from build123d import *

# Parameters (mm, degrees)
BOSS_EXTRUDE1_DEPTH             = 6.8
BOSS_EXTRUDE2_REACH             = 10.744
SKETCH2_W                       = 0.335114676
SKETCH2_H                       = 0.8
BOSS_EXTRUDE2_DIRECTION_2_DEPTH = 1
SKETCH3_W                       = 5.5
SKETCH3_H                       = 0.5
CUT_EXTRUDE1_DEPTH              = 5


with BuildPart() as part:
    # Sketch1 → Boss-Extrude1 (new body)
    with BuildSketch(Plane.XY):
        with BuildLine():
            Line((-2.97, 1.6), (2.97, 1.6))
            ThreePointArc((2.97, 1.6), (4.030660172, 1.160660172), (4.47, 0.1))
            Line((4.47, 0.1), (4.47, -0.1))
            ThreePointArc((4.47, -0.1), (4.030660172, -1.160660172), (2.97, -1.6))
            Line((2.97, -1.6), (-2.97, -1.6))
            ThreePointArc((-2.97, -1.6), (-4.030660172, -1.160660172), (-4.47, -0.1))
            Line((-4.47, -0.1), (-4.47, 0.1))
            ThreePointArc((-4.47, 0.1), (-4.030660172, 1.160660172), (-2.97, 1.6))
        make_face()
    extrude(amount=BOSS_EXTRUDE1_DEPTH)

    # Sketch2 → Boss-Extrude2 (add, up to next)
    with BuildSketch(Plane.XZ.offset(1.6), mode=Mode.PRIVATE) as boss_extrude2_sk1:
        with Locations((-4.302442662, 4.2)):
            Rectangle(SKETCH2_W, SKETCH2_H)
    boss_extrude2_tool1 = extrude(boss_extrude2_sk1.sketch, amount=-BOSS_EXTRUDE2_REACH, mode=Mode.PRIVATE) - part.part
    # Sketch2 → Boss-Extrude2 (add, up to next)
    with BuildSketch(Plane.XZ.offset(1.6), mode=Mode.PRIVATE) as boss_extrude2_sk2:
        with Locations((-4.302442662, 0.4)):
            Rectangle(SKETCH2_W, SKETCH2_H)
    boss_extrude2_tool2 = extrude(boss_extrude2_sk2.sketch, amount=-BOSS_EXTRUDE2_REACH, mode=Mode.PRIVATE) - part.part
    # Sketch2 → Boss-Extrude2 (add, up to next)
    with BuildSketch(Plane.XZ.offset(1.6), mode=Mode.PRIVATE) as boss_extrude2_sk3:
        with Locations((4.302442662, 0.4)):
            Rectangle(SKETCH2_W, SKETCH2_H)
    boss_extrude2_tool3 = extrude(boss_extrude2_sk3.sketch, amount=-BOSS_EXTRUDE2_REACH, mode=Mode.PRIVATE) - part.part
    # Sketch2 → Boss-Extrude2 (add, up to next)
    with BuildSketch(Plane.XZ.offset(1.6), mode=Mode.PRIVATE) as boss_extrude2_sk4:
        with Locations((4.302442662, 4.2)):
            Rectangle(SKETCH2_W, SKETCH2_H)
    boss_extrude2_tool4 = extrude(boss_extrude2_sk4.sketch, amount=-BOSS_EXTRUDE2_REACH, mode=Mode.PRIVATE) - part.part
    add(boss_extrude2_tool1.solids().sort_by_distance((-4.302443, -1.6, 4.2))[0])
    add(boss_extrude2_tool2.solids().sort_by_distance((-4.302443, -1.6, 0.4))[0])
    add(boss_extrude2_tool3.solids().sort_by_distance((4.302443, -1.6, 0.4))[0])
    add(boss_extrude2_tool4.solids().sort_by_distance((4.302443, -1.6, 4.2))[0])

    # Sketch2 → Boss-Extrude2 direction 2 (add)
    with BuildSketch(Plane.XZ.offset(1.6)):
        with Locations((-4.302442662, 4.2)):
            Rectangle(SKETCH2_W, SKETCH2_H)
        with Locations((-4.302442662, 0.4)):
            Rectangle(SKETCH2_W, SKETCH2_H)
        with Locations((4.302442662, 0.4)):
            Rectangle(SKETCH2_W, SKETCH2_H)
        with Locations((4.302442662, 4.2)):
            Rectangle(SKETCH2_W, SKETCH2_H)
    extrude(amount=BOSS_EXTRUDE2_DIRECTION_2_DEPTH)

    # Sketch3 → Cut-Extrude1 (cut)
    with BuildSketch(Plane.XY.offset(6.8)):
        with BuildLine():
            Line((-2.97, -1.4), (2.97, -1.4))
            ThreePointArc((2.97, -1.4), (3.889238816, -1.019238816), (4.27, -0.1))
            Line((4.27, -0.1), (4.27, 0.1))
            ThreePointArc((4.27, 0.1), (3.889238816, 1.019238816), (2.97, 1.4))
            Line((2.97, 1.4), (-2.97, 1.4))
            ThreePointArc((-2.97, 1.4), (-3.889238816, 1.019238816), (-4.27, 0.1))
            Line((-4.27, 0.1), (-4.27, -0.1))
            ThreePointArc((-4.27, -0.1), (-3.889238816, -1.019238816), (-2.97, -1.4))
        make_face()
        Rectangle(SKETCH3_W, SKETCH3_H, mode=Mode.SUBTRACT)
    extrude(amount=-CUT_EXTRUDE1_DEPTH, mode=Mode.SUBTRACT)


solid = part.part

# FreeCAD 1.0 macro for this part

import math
import FreeCAD as App
import Part
import Sketcher
from FreeCAD import Vector


def add_polygon(sketch, points):
    """Adds a closed chain of lines whose ends are joined by coincident constraints."""
    first, n = sketch.GeometryCount, len(points)
    for a, b in zip(points, points[1:] + points[:1]):
        sketch.addGeometry(Part.LineSegment(App.Vector(*a, 0), App.Vector(*b, 0)), False)
    for i in range(n):
        sketch.addConstraint(Sketcher.Constraint("Coincident", first + i, 2, first + (i + 1) % n, 1))

doc = App.newDocument("Part")
body = doc.addObject("PartDesign::Body", "Body")

# Sketch on XY plane
sketch1 = body.newObject("Sketcher::SketchObject", "Sketch")
sketch1.AttachmentSupport = (doc.getObject("XY_Plane"), [""])
sketch1.MapMode = "FlatFace"
sketch1.addGeometry([
    Part.LineSegment(Vector(2.97, 1.6, 0), Vector(-2.97, 1.6, 0)),  # 0
    Part.ArcOfCircle(Part.Circle(Vector(-2.97, 0.1, 0), Vector(0, 0, 1), 1.5), math.radians(90), math.radians(180)),  # 1
    Part.LineSegment(Vector(-4.47, 0.1, 0), Vector(-4.47, -0.1, 0)),  # 2
    Part.ArcOfCircle(Part.Circle(Vector(-2.97, -0.1, 0), Vector(0, 0, 1), 1.5), math.radians(180), math.radians(270)),  # 3
    Part.LineSegment(Vector(-2.97, -1.6, 0), Vector(2.97, -1.6, 0)),  # 4
    Part.ArcOfCircle(Part.Circle(Vector(2.97, -0.1, 0), Vector(0, 0, 1), 1.5), math.radians(-90), math.radians(0)),  # 5
    Part.LineSegment(Vector(4.47, -0.1, 0), Vector(4.47, 0.1, 0)),  # 6
    Part.ArcOfCircle(Part.Circle(Vector(2.97, 0.1, 0), Vector(0, 0, 1), 1.5), math.radians(0), math.radians(90)),  # 7
], False)
sketch1.addConstraint([
    Sketcher.Constraint("Tangent", 0, 2, 1, 1),
    Sketcher.Constraint("Tangent", 1, 2, 2, 1),
    Sketcher.Constraint("Tangent", 2, 2, 3, 1),
    Sketcher.Constraint("Tangent", 3, 2, 4, 1),
    Sketcher.Constraint("Tangent", 4, 2, 5, 1),
    Sketcher.Constraint("Tangent", 5, 2, 6, 1),
    Sketcher.Constraint("Tangent", 6, 2, 7, 1),
    Sketcher.Constraint("Tangent", 7, 2, 0, 1),
    Sketcher.Constraint("Horizontal", 0),
    Sketcher.Constraint("Vertical", 2),
    Sketcher.Constraint("Horizontal", 4),
    Sketcher.Constraint("Vertical", 6),
    Sketcher.Constraint("Equal", 1, 3),
    Sketcher.Constraint("Equal", 3, 5),
    Sketcher.Constraint("Equal", 5, 7),
    Sketcher.Constraint("Symmetric", 1, 3, 5, 3, -1, 1),
    Sketcher.Constraint("Radius", 1, 1.5),
    Sketcher.Constraint("DistanceY", 2, 2, 2, 1, 0.2),
    Sketcher.Constraint("DistanceX", 0, 2, 0, 1, 5.94),
])
pad1 = body.newObject("PartDesign::Pad", "Pad")
pad1.Profile = sketch1
pad1.Length = 6.8

# Sketch on XZ plane
sketch2 = body.newObject("Sketcher::SketchObject", "Sketch001")
sketch2.AttachmentSupport = (doc.getObject("XZ_Plane"), [""])
sketch2.MapMode = "FlatFace"
sketch2.AttachmentOffset = App.Placement(Vector(0, 0, 1.6), App.Rotation())
add_polygon(sketch2, [(-4.47, 4.6), (-4.47, 3.8), (-4.13, 3.8), (-4.13, 4.6)])  # lines 0-3
sketch2.addConstraint([
    Sketcher.Constraint("Vertical", 0),
    Sketcher.Constraint("Horizontal", 1),
    Sketcher.Constraint("Vertical", 2),
    Sketcher.Constraint("Horizontal", 3),
    Sketcher.Constraint("DistanceY", 0, 2, 0, 1, 0.8),
    Sketcher.Constraint("DistanceY", -1, 1, 0, 2, 3.8),
    Sketcher.Constraint("DistanceX", 0, 2, -1, 1, 4.47),
    Sketcher.Constraint("DistanceX", 1, 1, 1, 2, 0.335115),
])
pad2 = body.newObject("PartDesign::Pad", "Pad001")
pad2.Profile = sketch2
pad2.Type = "UpToFirst"
pad2.Reversed = True

# Sketch on XZ plane
sketch3 = body.newObject("Sketcher::SketchObject", "Sketch002")
sketch3.AttachmentSupport = (doc.getObject("XZ_Plane"), [""])
sketch3.MapMode = "FlatFace"
sketch3.AttachmentOffset = App.Placement(Vector(0, 0, 1.6), App.Rotation())
add_polygon(sketch3, [(-4.47, 0.8), (-4.47, 0), (-4.13, 0), (-4.13, 0.8)])  # lines 0-3
sketch3.addConstraint([
    Sketcher.Constraint("Vertical", 0),
    Sketcher.Constraint("Horizontal", 1),
    Sketcher.Constraint("Vertical", 2),
    Sketcher.Constraint("Horizontal", 3),
    Sketcher.Constraint("PointOnObject", 0, 2, -1),
    Sketcher.Constraint("DistanceY", 0, 2, 0, 1, 0.8),
    Sketcher.Constraint("DistanceX", 0, 2, -1, 1, 4.47),
    Sketcher.Constraint("DistanceX", 1, 1, 1, 2, 0.335115),
])
pad3 = body.newObject("PartDesign::Pad", "Pad002")
pad3.Profile = sketch3
pad3.Type = "UpToFirst"
pad3.Reversed = True

# Sketch on XZ plane
sketch4 = body.newObject("Sketcher::SketchObject", "Sketch003")
sketch4.AttachmentSupport = (doc.getObject("XZ_Plane"), [""])
sketch4.MapMode = "FlatFace"
sketch4.AttachmentOffset = App.Placement(Vector(0, 0, 1.6), App.Rotation())
add_polygon(sketch4, [(4.13, 0.8), (4.13, 0), (4.47, 0), (4.47, 0.8)])  # lines 0-3
sketch4.addConstraint([
    Sketcher.Constraint("Vertical", 0),
    Sketcher.Constraint("Horizontal", 1),
    Sketcher.Constraint("Vertical", 2),
    Sketcher.Constraint("Horizontal", 3),
    Sketcher.Constraint("PointOnObject", 0, 2, -1),
    Sketcher.Constraint("DistanceY", 0, 2, 0, 1, 0.8),
    Sketcher.Constraint("DistanceX", -1, 1, 1, 2, 4.47),
    Sketcher.Constraint("DistanceX", 1, 1, 1, 2, 0.335115),
])
pad4 = body.newObject("PartDesign::Pad", "Pad003")
pad4.Profile = sketch4
pad4.Type = "UpToFirst"
pad4.Reversed = True

# Sketch on XZ plane
sketch5 = body.newObject("Sketcher::SketchObject", "Sketch004")
sketch5.AttachmentSupport = (doc.getObject("XZ_Plane"), [""])
sketch5.MapMode = "FlatFace"
sketch5.AttachmentOffset = App.Placement(Vector(0, 0, 1.6), App.Rotation())
add_polygon(sketch5, [(4.13, 4.6), (4.13, 3.8), (4.47, 3.8), (4.47, 4.6)])  # lines 0-3
sketch5.addConstraint([
    Sketcher.Constraint("Vertical", 0),
    Sketcher.Constraint("Horizontal", 1),
    Sketcher.Constraint("Vertical", 2),
    Sketcher.Constraint("Horizontal", 3),
    Sketcher.Constraint("DistanceY", 0, 2, 0, 1, 0.8),
    Sketcher.Constraint("DistanceY", -1, 1, 0, 2, 3.8),
    Sketcher.Constraint("DistanceX", -1, 1, 1, 2, 4.47),
    Sketcher.Constraint("DistanceX", 1, 1, 1, 2, 0.335115),
])
pad5 = body.newObject("PartDesign::Pad", "Pad004")
pad5.Profile = sketch5
pad5.Type = "UpToFirst"
pad5.Reversed = True

# Sketch on XZ plane
sketch6 = body.newObject("Sketcher::SketchObject", "Sketch005")
sketch6.AttachmentSupport = (doc.getObject("XZ_Plane"), [""])
sketch6.MapMode = "FlatFace"
sketch6.AttachmentOffset = App.Placement(Vector(0, 0, 1.6), App.Rotation())
add_polygon(sketch6, [(-4.47, 4.6), (-4.47, 3.8), (-4.13, 3.8), (-4.13, 4.6)])  # lines 0-3
add_polygon(sketch6, [(-4.47, 0.8), (-4.47, 0), (-4.13, 0), (-4.13, 0.8)])  # lines 4-7
add_polygon(sketch6, [(4.13, 0.8), (4.13, 0), (4.47, 0), (4.47, 0.8)])  # lines 8-11
add_polygon(sketch6, [(4.13, 4.6), (4.13, 3.8), (4.47, 3.8), (4.47, 4.6)])  # lines 12-15
sketch6.addConstraint([
    Sketcher.Constraint("Vertical", 0),
    Sketcher.Constraint("Horizontal", 1),
    Sketcher.Constraint("Vertical", 2),
    Sketcher.Constraint("Horizontal", 3),
    Sketcher.Constraint("Vertical", 4),
    Sketcher.Constraint("Horizontal", 5),
    Sketcher.Constraint("Vertical", 6),
    Sketcher.Constraint("Horizontal", 7),
    Sketcher.Constraint("Vertical", 8),
    Sketcher.Constraint("Horizontal", 9),
    Sketcher.Constraint("Vertical", 10),
    Sketcher.Constraint("Horizontal", 11),
    Sketcher.Constraint("Vertical", 12),
    Sketcher.Constraint("Horizontal", 13),
    Sketcher.Constraint("Vertical", 14),
    Sketcher.Constraint("Horizontal", 15),
    Sketcher.Constraint("Symmetric", 5, 2, 8, 2, -1, 1),
    Sketcher.Constraint("Symmetric", 4, 2, 9, 2, -2),
    Sketcher.Constraint("Symmetric", 1, 2, 12, 2, -2),
    Sketcher.Constraint("Symmetric", 3, 2, 14, 2, -2),
    Sketcher.Constraint("Horizontal", 7, 2, 10, 2),
    Sketcher.Constraint("Vertical", 3, 2, 4, 2),
    Sketcher.Constraint("Vertical", 2, 2, 5, 2),
    Sketcher.Constraint("Equal", 2, 4),
    Sketcher.Constraint("DistanceY", 0, 2, 0, 1, 0.8),
    Sketcher.Constraint("DistanceY", 6, 2, 1, 2, 3.0),
    Sketcher.Constraint("DistanceX", 0, 2, -1, 1, 4.47),
    Sketcher.Constraint("DistanceX", 1, 1, 1, 2, 0.335115),
])
pad6 = body.newObject("PartDesign::Pad", "Pad005")
pad6.Profile = sketch6
pad6.Length = 1

# Sketch on XY plane
sketch7 = body.newObject("Sketcher::SketchObject", "Sketch006")
sketch7.AttachmentSupport = (doc.getObject("XY_Plane"), [""])
sketch7.MapMode = "FlatFace"
sketch7.AttachmentOffset = App.Placement(Vector(0, 0, 6.8), App.Rotation())
sketch7.addGeometry(Part.LineSegment(Vector(-2.97, -1.4, 0), Vector(2.97, -1.4, 0)), False)  # 0
sketch7.addGeometry(Part.ArcOfCircle(Part.Circle(Vector(2.97, -0.1, 0), Vector(0, 0, 1), 1.3), math.radians(-90), math.radians(0)), False)  # 1
sketch7.addGeometry(Part.LineSegment(Vector(4.27, -0.1, 0), Vector(4.27, 0.1, 0)), False)  # 2
sketch7.addGeometry(Part.ArcOfCircle(Part.Circle(Vector(2.97, 0.1, 0), Vector(0, 0, 1), 1.3), math.radians(0), math.radians(90)), False)  # 3
sketch7.addGeometry(Part.LineSegment(Vector(2.97, 1.4, 0), Vector(-2.97, 1.4, 0)), False)  # 4
sketch7.addGeometry(Part.ArcOfCircle(Part.Circle(Vector(-2.97, 0.1, 0), Vector(0, 0, 1), 1.3), math.radians(90), math.radians(180)), False)  # 5
sketch7.addGeometry(Part.LineSegment(Vector(-4.27, 0.1, 0), Vector(-4.27, -0.1, 0)), False)  # 6
sketch7.addGeometry(Part.ArcOfCircle(Part.Circle(Vector(-2.97, -0.1, 0), Vector(0, 0, 1), 1.3), math.radians(180), math.radians(270)), False)  # 7
add_polygon(sketch7, [(2.75, -0.25), (-2.75, -0.25), (-2.75, 0.25), (2.75, 0.25)])  # lines 8-11
sketch7.addConstraint([
    Sketcher.Constraint("Tangent", 0, 2, 1, 1),
    Sketcher.Constraint("Tangent", 1, 2, 2, 1),
    Sketcher.Constraint("Tangent", 2, 2, 3, 1),
    Sketcher.Constraint("Tangent", 3, 2, 4, 1),
    Sketcher.Constraint("Tangent", 4, 2, 5, 1),
    Sketcher.Constraint("Tangent", 5, 2, 6, 1),
    Sketcher.Constraint("Tangent", 6, 2, 7, 1),
    Sketcher.Constraint("Tangent", 7, 2, 0, 1),
    Sketcher.Constraint("Horizontal", 0),
    Sketcher.Constraint("Vertical", 2),
    Sketcher.Constraint("Horizontal", 4),
    Sketcher.Constraint("Vertical", 6),
    Sketcher.Constraint("Horizontal", 8),
    Sketcher.Constraint("Vertical", 9),
    Sketcher.Constraint("Horizontal", 10),
    Sketcher.Constraint("Vertical", 11),
    Sketcher.Constraint("Equal", 1, 3),
    Sketcher.Constraint("Equal", 3, 5),
    Sketcher.Constraint("Equal", 5, 7),
    Sketcher.Constraint("Symmetric", 1, 3, 5, 3, -1, 1),
    Sketcher.Constraint("Symmetric", 8, 2, 10, 2, -1, 1),
    Sketcher.Constraint("Radius", 1, 1.3),
    Sketcher.Constraint("DistanceX", 8, 2, 8, 1, 5.5),
    Sketcher.Constraint("DistanceY", 2, 1, 2, 2, 0.2),
    Sketcher.Constraint("DistanceY", 9, 1, 9, 2, 0.5),
    Sketcher.Constraint("DistanceX", 0, 1, 0, 2, 5.94),
])
pocket1 = body.newObject("PartDesign::Pocket", "Pocket")
pocket1.Profile = sketch7
pocket1.Length = 5

doc.recompute()
